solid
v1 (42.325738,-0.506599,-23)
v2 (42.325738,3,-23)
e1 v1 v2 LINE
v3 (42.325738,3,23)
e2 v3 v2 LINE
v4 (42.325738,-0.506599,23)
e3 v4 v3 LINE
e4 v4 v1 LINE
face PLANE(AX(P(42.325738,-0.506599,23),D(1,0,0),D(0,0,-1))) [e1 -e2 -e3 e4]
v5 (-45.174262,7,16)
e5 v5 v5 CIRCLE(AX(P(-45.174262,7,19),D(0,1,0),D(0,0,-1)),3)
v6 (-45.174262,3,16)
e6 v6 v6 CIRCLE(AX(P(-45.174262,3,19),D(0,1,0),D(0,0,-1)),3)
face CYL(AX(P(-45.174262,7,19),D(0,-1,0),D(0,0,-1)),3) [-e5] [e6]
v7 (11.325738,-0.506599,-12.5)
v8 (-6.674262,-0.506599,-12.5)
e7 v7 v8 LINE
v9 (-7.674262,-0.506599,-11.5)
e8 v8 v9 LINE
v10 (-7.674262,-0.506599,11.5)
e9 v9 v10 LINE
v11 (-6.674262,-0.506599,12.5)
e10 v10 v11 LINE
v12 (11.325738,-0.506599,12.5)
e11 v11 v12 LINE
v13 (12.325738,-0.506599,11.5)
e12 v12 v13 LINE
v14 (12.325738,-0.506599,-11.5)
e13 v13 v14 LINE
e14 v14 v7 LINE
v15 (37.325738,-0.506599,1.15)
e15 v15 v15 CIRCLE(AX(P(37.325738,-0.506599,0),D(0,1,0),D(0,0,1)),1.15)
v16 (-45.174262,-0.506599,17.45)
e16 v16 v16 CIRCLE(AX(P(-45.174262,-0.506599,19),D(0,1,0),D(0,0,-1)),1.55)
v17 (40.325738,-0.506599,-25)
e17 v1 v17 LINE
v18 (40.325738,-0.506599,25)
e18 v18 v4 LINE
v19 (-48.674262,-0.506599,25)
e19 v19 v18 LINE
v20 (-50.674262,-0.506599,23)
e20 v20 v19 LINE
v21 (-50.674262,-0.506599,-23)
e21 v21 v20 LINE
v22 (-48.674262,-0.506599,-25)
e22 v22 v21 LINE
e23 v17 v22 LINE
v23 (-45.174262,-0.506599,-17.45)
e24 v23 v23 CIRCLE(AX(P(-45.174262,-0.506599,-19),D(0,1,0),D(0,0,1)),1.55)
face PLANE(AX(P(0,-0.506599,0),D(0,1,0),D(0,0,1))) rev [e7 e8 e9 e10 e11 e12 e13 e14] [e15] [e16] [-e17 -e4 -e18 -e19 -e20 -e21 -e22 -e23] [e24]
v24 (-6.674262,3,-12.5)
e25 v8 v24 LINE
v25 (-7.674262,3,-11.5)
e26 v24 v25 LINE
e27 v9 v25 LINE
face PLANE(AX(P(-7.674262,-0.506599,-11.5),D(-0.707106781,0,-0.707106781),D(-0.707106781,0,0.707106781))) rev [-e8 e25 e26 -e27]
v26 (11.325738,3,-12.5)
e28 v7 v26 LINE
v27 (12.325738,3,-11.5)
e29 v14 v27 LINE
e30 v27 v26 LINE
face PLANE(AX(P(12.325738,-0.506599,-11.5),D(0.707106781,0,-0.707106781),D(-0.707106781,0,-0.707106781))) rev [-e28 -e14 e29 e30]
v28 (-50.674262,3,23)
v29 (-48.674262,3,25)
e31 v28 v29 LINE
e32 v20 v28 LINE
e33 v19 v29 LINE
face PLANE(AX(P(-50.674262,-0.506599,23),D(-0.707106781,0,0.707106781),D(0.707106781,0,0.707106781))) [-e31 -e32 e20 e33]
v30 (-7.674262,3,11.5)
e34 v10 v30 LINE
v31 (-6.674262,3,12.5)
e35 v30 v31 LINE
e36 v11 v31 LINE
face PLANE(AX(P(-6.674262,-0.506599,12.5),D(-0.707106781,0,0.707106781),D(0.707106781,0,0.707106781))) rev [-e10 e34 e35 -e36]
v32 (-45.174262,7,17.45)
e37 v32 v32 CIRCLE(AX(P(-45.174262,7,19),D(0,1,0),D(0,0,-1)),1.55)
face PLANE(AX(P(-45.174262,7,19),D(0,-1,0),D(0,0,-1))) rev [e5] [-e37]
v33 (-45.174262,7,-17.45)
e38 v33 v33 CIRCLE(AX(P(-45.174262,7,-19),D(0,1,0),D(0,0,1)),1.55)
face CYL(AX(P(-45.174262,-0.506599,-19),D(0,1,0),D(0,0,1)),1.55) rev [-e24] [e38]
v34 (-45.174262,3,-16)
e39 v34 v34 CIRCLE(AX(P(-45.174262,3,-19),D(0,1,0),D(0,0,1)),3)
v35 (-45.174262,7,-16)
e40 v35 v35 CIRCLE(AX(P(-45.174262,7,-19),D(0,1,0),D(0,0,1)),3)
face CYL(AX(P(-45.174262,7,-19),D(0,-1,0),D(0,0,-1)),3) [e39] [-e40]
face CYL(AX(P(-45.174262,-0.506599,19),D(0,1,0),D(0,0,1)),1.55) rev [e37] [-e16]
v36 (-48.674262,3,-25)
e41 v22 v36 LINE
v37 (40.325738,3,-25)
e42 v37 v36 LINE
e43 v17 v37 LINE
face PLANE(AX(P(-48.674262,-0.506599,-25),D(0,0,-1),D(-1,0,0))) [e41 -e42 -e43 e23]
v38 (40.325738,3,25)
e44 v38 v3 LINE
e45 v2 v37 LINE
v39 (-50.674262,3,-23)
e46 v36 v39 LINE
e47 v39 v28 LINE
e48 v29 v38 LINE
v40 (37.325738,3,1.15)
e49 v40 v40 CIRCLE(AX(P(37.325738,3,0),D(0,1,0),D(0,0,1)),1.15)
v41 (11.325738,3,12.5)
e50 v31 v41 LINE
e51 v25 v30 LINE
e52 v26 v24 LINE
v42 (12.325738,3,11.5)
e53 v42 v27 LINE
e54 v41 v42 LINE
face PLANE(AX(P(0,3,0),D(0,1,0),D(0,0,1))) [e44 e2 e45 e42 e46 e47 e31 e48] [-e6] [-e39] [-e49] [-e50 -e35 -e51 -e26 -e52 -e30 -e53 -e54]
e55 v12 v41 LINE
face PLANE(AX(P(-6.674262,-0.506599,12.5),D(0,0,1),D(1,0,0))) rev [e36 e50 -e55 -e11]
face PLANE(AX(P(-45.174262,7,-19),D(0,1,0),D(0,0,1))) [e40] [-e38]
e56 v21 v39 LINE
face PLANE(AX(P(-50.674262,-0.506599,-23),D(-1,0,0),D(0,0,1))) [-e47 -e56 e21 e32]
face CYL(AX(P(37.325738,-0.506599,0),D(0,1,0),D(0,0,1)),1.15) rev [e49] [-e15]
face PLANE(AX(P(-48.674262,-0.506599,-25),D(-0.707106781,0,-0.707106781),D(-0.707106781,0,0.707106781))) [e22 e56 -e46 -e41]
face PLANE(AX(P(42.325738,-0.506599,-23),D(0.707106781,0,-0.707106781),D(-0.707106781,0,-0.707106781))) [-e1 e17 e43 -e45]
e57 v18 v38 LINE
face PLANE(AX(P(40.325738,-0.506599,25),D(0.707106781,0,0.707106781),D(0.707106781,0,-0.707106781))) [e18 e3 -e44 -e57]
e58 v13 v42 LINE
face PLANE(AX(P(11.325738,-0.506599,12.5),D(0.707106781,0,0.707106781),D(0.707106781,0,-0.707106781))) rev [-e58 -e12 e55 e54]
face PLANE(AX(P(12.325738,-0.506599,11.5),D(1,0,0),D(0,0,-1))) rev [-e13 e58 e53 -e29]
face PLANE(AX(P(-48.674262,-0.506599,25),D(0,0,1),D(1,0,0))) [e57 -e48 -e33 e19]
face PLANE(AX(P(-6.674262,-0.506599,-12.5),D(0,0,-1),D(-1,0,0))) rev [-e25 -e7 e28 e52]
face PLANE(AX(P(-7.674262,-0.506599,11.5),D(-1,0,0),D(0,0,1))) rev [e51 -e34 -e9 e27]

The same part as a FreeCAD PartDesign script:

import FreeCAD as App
import Part
import Sketcher
Q = App.Units.Quantity

doc = App.newDocument("Part")
body = doc.addObject("PartDesign::Body", "Body")

# Sketch on XZ plane
sketch1 = body.newObject("Sketcher::SketchObject", "Sketch")
sketch1.AttachmentSupport = (doc.getObject("XZ_Plane"), [""])
sketch1.MapMode = "FlatFace"
sketch1.addGeometry([
    Part.LineSegment(App.Vector(-48.7, 25, 0), App.Vector(40.3, 25, 0)),  # 0
    Part.LineSegment(App.Vector(40.3, 25, 0), App.Vector(42.3, 23, 0)),  # 1
    Part.LineSegment(App.Vector(42.3, 23, 0), App.Vector(42.3, -23, 0)),  # 2
    Part.LineSegment(App.Vector(42.3, -23, 0), App.Vector(40.3, -25, 0)),  # 3
    Part.LineSegment(App.Vector(40.3, -25, 0), App.Vector(-48.7, -25, 0)),  # 4
    Part.LineSegment(App.Vector(-48.7, -25, 0), App.Vector(-50.7, -23, 0)),  # 5
    Part.LineSegment(App.Vector(-50.7, -23, 0), App.Vector(-50.7, 23, 0)),  # 6
    Part.LineSegment(App.Vector(-50.7, 23, 0), App.Vector(-48.7, 25, 0)),  # 7
    Part.Circle(App.Vector(-45.2, 19, 0), App.Vector(0, 0, 1), 1.6),  # 8
    Part.Circle(App.Vector(-45.2, -19, 0), App.Vector(0, 0, 1), 1.6),  # 9
    Part.LineSegment(App.Vector(11.3, 12.5, 0), App.Vector(-6.7, 12.5, 0)),  # 10
    Part.LineSegment(App.Vector(-6.7, 12.5, 0), App.Vector(-7.7, 11.5, 0)),  # 11
    Part.LineSegment(App.Vector(-7.7, 11.5, 0), App.Vector(-7.7, -11.5, 0)),  # 12
    Part.LineSegment(App.Vector(-7.7, -11.5, 0), App.Vector(-6.7, -12.5, 0)),  # 13
    Part.LineSegment(App.Vector(-6.7, -12.5, 0), App.Vector(11.3, -12.5, 0)),  # 14
    Part.LineSegment(App.Vector(11.3, -12.5, 0), App.Vector(12.3, -11.5, 0)),  # 15
    Part.LineSegment(App.Vector(12.3, -11.5, 0), App.Vector(12.3, 11.5, 0)),  # 16
    Part.LineSegment(App.Vector(12.3, 11.5, 0), App.Vector(11.3, 12.5, 0)),  # 17
    Part.Circle(App.Vector(37.3, 0, 0), App.Vector(0, 0, 1), 1.1),  # 18
], False)
sketch1.addConstraint([
    Sketcher.Constraint("Coincident", 0, 2, 1, 1),
    Sketcher.Constraint("Coincident", 1, 2, 2, 1),
    Sketcher.Constraint("Coincident", 2, 2, 3, 1),
    Sketcher.Constraint("Coincident", 3, 2, 4, 1),
    Sketcher.Constraint("Coincident", 4, 2, 5, 1),
    Sketcher.Constraint("Coincident", 5, 2, 6, 1),
    Sketcher.Constraint("Coincident", 6, 2, 7, 1),
    Sketcher.Constraint("Coincident", 7, 2, 0, 1),
    Sketcher.Constraint("Coincident", 10, 2, 11, 1),
    Sketcher.Constraint("Coincident", 11, 2, 12, 1),
    Sketcher.Constraint("Coincident", 12, 2, 13, 1),
    Sketcher.Constraint("Coincident", 13, 2, 14, 1),
    Sketcher.Constraint("Coincident", 14, 2, 15, 1),
    Sketcher.Constraint("Coincident", 15, 2, 16, 1),
    Sketcher.Constraint("Coincident", 16, 2, 17, 1),
    Sketcher.Constraint("Coincident", 17, 2, 10, 1),
    Sketcher.Constraint("Horizontal", 0),
    Sketcher.Constraint("Vertical", 2),
    Sketcher.Constraint("Horizontal", 4),
    Sketcher.Constraint("Vertical", 6),
    Sketcher.Constraint("Horizontal", 10),
    Sketcher.Constraint("Vertical", 12),
    Sketcher.Constraint("Horizontal", 14),
    Sketcher.Constraint("Vertical", 16),
    Sketcher.Constraint("Equal", 8, 9),
    Sketcher.Constraint("Symmetric", 8, 3, 9, 3, -1),
    Sketcher.Constraint("Symmetric", 0, 2, 3, 2, -1),
    Sketcher.Constraint("Symmetric", 10, 2, 13, 2, -1),
    Sketcher.Constraint("PointOnObject", 18, 3, -1),
    Sketcher.Constraint("Perpendicular", 1, 3),
    Sketcher.Constraint("Perpendicular", 3, 5),
    Sketcher.Constraint("Perpendicular", 5, 7),
    Sketcher.Constraint("Parallel", 7, 11),
    Sketcher.Constraint("Perpendicular", 11, 13),
    Sketcher.Constraint("Perpendicular", 13, 15),
    Sketcher.Constraint("Perpendicular", 15, 17),
    Sketcher.Constraint("Horizontal", 2, 2, 5, 2),
    Sketcher.Constraint("Horizontal", 1, 2, 6, 2),
    Sketcher.Constraint("Horizontal", 12, 2, 15, 2),
    Sketcher.Constraint("Horizontal", 11, 2, 16, 2),
    Sketcher.Constraint("Vertical", 4, 2, 7, 2),
    Sketcher.Constraint("Diameter", 8, Q("3.1 mm")),
    Sketcher.Constraint("Diameter", 18, Q("2.3 mm")),
    Sketcher.Constraint("DistanceX", 0, 1, 0, 2, Q("89 mm")),
    Sketcher.Constraint("DistanceX", 10, 2, 10, 1, Q("18 mm")),
    Sketcher.Constraint("DistanceY", 2, 2, 2, 1, Q("46 mm")),
    Sketcher.Constraint("DistanceY", 12, 2, 12, 1, Q("23 mm")),
    Sketcher.Constraint("DistanceY", -1, 1, 8, 3, Q("19 mm")),
    Sketcher.Constraint("DistanceY", -1, 1, 0, 2, Q("25 mm")),
    Sketcher.Constraint("DistanceX", 18, 3, 0, 2, Q("3 mm")),
    Sketcher.Constraint("DistanceX", 7, 2, 10, 2, Q("42 mm")),
    Sketcher.Constraint("DistanceX", 11, 2, 10, 2, Q("1 mm")),
    Sketcher.Constraint("DistanceX", 8, 3, 18, 3, Q("82.5 mm")),
    Sketcher.Constraint("DistanceX", 8, 3, -1, 1, Q("45.174262 mm")),
])
pad1 = body.newObject("PartDesign::Pad", "Pad")
pad1.Profile = sketch1
pad1.Type = "TwoLengths"
pad1.Length = 3
pad1.Length2 = 0.506599
pad1.Reversed = True

# Sketch on XZ plane
sketch2 = body.newObject("Sketcher::SketchObject", "Sketch001")
sketch2.AttachmentSupport = (doc.getObject("XZ_Plane"), [""])
sketch2.MapMode = "FlatFace"
sketch2.AttachmentOffset = App.Placement(App.Vector(0, 0, -3), App.Rotation())
sketch2.addGeometry([
    Part.Circle(App.Vector(-45.2, -19, 0), App.Vector(0, 0, 1), 3),
    Part.Circle(App.Vector(-45.2, -19, 0), App.Vector(0, 0, 1), 1.6),
    Part.Circle(App.Vector(-45.2, 19, 0), App.Vector(0, 0, 1), 3),
    Part.Circle(App.Vector(-45.2, 19, 0), App.Vector(0, 0, 1), 1.6),
], False)
sketch2.addConstraint([
    Sketcher.Constraint("Coincident", 1, 3, 0, 3),
    Sketcher.Constraint("Coincident", 3, 3, 2, 3),
    Sketcher.Constraint("Equal", 0, 2),
    Sketcher.Constraint("Equal", 1, 3),
    Sketcher.Constraint("Symmetric", 0, 3, 2, 3, -1),
    Sketcher.Constraint("Diameter", 0, Q("6 mm")),
    Sketcher.Constraint("Diameter", 1, Q("3.1 mm")),
    Sketcher.Constraint("DistanceY", 0, 3, -1, 1, Q("19 mm")),
    Sketcher.Constraint("DistanceX", 0, 3, -1, 1, Q("45.174262 mm")),
])
pad2 = body.newObject("PartDesign::Pad", "Pad001")
pad2.Profile = sketch2
pad2.Length = 4
pad2.Reversed = True

doc.recompute()
